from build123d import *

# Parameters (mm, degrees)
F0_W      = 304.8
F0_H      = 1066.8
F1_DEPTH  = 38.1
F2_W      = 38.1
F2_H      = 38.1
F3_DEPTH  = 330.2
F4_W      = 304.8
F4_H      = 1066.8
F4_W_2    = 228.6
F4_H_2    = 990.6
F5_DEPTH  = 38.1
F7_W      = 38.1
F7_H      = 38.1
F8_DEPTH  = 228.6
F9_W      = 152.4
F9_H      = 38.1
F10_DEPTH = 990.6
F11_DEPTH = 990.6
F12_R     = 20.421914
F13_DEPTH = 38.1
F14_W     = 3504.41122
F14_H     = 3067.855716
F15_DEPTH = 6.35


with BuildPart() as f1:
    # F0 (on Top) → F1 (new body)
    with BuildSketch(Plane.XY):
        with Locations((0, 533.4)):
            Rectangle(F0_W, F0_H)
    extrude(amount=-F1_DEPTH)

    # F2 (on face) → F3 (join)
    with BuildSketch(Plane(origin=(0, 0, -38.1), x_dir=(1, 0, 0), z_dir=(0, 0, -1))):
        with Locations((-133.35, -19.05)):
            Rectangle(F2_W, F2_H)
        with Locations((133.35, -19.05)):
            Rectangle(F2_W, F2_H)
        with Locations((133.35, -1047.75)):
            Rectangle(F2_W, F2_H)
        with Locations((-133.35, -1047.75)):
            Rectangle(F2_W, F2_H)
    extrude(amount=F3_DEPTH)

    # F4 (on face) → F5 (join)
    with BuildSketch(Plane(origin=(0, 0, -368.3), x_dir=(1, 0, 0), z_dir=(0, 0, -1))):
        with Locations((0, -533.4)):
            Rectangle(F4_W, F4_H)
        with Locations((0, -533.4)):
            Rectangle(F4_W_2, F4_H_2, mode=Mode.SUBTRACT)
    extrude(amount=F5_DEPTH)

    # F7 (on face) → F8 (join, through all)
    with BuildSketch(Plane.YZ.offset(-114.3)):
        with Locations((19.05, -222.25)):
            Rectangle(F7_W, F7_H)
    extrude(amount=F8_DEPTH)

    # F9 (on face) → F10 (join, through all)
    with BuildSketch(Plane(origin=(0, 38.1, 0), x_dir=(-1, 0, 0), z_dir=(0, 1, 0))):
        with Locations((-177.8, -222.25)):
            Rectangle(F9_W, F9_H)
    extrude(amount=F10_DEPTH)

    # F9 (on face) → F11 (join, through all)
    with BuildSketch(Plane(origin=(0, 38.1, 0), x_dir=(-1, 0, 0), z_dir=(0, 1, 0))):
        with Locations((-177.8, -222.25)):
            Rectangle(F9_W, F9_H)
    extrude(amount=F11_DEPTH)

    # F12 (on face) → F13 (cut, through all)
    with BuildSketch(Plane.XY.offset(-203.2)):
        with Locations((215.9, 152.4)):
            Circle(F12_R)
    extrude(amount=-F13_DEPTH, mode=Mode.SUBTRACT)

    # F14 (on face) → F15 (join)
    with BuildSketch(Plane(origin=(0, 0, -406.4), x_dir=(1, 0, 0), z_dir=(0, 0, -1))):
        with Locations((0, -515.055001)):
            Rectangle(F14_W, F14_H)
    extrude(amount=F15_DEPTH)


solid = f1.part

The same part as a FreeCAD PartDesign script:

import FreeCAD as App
import Part
import Sketcher

V = App.Vector
Q = App.Units.Quantity


def add_polygon(sketch, points):
    """Adds a closed chain of lines whose ends are joined by coincident constraints."""
    first, n = sketch.GeometryCount, len(points)
    for a, b in zip(points, points[1:] + points[:1]):
        sketch.addGeometry(Part.LineSegment(App.Vector(*a, 0), App.Vector(*b, 0)), False)
    for i in range(n):
        sketch.addConstraint(Sketcher.Constraint("Coincident", first + i, 2, first + (i + 1) % n, 1))

doc = App.newDocument("Part")
params = doc.addObject("Spreadsheet::Sheet", "Params")
for row, (alias, value) in enumerate([
    ("sketch1_width", "12 in"),
    ("sketch1_height", "42 in"),
    ("pad1_length", "1.5 in"),
    ("sketch2_width", "1.5 in"),
    ("pad2_length", "13 in"),
    ("sketch3_width", "12 in"),
    ("sketch3_width2", "9 in"),
    ("sketch3_height", "42 in"),
    ("sketch3_height2", "39 in"),
    ("pad3_length", "1.5 in"),
    ("sketch4_width", "1.5 in"),
    ("sketch5_width", "6 in"),
    ("sketch5_height", "1.5 in"),
    ("pad5_length", "39 in"),
    ("sketch6_width", "6 in"),
    ("sketch6_height", "1.5 in"),
    ("pad7_length", "0.25 in"),
], start=1):
    params.set(f"A{row}", alias)
    params.set(f"B{row}", "=" + value)
    params.setAlias(f"B{row}", alias)

body = doc.addObject("PartDesign::Body", "Body")

sketch1 = body.newObject("Sketcher::SketchObject", "Sketch")
sketch1.AttachmentSupport = (doc.getObject("XY_Plane"), [""])
sketch1.MapMode = "FlatFace"
add_polygon(sketch1, [(-152, 1067), (-152, 0), (152, 0), (152, 1067)])
sketch1.addConstraint(Sketcher.Constraint("Vertical", 0))
sketch1.addConstraint(Sketcher.Constraint("Horizontal", 1))
sketch1.addConstraint(Sketcher.Constraint("Vertical", 2))
sketch1.addConstraint(Sketcher.Constraint("Horizontal", 3))
sketch1.addConstraint(Sketcher.Constraint("Symmetric", 0, 2, 1, 2, -1, 1))
sketch1.addConstraint(Sketcher.Constraint("DistanceX", 1, 1, 1, 2, Q("12 in")))
sketch1.addConstraint(Sketcher.Constraint("DistanceY", 0, 2, 0, 1, Q("42 in")))
sketch1.setExpression("Constraints[9]", "Params.sketch1_width")
sketch1.setExpression("Constraints[10]", "Params.sketch1_height")
pad1 = body.newObject("PartDesign::Pad", "Pad")
pad1.Profile = sketch1
pad1.setExpression("Length", "Params.pad1_length")
pad1.Reversed = True

sketch2 = body.newObject("Sketcher::SketchObject", "Sketch001")
sketch2.AttachmentSupport = (doc.getObject("XY_Plane"), [""])
sketch2.MapMode = "FlatFace"
sketch2.AttachmentOffset = App.Placement(V(0, 0, -1.5 * 25.4), App.Rotation())
add_polygon(sketch2, [(-152, 0), (-152, 38), (-114, 38), (-114, 0)])
add_polygon(sketch2, [(114, 0), (114, 38), (152, 38), (152, 0)])
add_polygon(sketch2, [(114, 1029), (114, 1067), (152, 1067), (152, 1029)])
add_polygon(sketch2, [(-152, 1029), (-152, 1067), (-114, 1067), (-114, 1029)])
sketch2.addConstraint(Sketcher.Constraint("Vertical", 0))
sketch2.addConstraint(Sketcher.Constraint("Horizontal", 1))
sketch2.addConstraint(Sketcher.Constraint("Vertical", 2))
sketch2.addConstraint(Sketcher.Constraint("Horizontal", 3))
sketch2.addConstraint(Sketcher.Constraint("Vertical", 4))
sketch2.addConstraint(Sketcher.Constraint("Horizontal", 5))
sketch2.addConstraint(Sketcher.Constraint("Vertical", 6))
sketch2.addConstraint(Sketcher.Constraint("Horizontal", 7))
sketch2.addConstraint(Sketcher.Constraint("Vertical", 8))
sketch2.addConstraint(Sketcher.Constraint("Horizontal", 9))
sketch2.addConstraint(Sketcher.Constraint("Vertical", 10))
sketch2.addConstraint(Sketcher.Constraint("Horizontal", 11))
sketch2.addConstraint(Sketcher.Constraint("Vertical", 12))
sketch2.addConstraint(Sketcher.Constraint("Horizontal", 13))
sketch2.addConstraint(Sketcher.Constraint("Vertical", 14))
sketch2.addConstraint(Sketcher.Constraint("Horizontal", 15))
sketch2.addConstraint(Sketcher.Constraint("Symmetric", 3, 2, 6, 2, -1, 1))
sketch2.addConstraint(Sketcher.Constraint("Symmetric", 1, 2, 4, 2, -2))
sketch2.addConstraint(Sketcher.Constraint("Symmetric", 9, 2, 12, 2, -2))
sketch2.addConstraint(Sketcher.Constraint("Symmetric", 11, 2, 14, 2, -2))
sketch2.addConstraint(Sketcher.Constraint("PointOnObject", 2, 2, -1))
sketch2.addConstraint(Sketcher.Constraint("Vertical", 7, 2, 8, 2))
sketch2.addConstraint(Sketcher.Constraint("Vertical", 6, 2, 9, 2))
sketch2.addConstraint(Sketcher.Constraint("Equal", 15, 0))
sketch2.addConstraint(Sketcher.Constraint("Equal", 6, 8))
sketch2.addConstraint(Sketcher.Constraint("DistanceX", 1, 1, 1, 2, Q("1.5 in")))
sketch2.addConstraint(Sketcher.Constraint("DistanceX", 0, 2, -1, 1, Q("6 in")))
sketch2.addConstraint(Sketcher.Constraint("DistanceY", -1, 1, 8, 2, Q("42 in")))
sketch2.setExpression("Constraints[41]", "Params.sketch2_width")
pad2 = body.newObject("PartDesign::Pad", "Pad001")
pad2.Profile = sketch2
pad2.setExpression("Length", "Params.pad2_length")
pad2.Reversed = True

sketch3 = body.newObject("Sketcher::SketchObject", "Sketch002")
sketch3.AttachmentSupport = (doc.getObject("XY_Plane"), [""])
sketch3.MapMode = "FlatFace"
sketch3.AttachmentOffset = App.Placement(V(0, 0, -14.5 * 25.4), App.Rotation())
add_polygon(sketch3, [(-152, 0), (-152, 1067), (152, 1067), (152, 0)])
add_polygon(sketch3, [(114, 1029), (-114, 1029), (-114, 38), (114, 38)])
sketch3.addConstraint(Sketcher.Constraint("Vertical", 0))
sketch3.addConstraint(Sketcher.Constraint("Horizontal", 1))
sketch3.addConstraint(Sketcher.Constraint("Vertical", 2))
sketch3.addConstraint(Sketcher.Constraint("Horizontal", 3))
sketch3.addConstraint(Sketcher.Constraint("Horizontal", 4))
sketch3.addConstraint(Sketcher.Constraint("Vertical", 5))
sketch3.addConstraint(Sketcher.Constraint("Horizontal", 6))
sketch3.addConstraint(Sketcher.Constraint("Vertical", 7))
sketch3.addConstraint(Sketcher.Constraint("Symmetric", 2, 2, 3, 2, -1, 1))
sketch3.addConstraint(Sketcher.Constraint("DistanceX", 1, 1, 1, 2, Q("12 in")))
sketch3.addConstraint(Sketcher.Constraint("DistanceX", 4, 2, 4, 1, Q("9 in")))
sketch3.addConstraint(Sketcher.Constraint("DistanceY", 0, 1, 0, 2, Q("42 in")))
sketch3.addConstraint(Sketcher.Constraint("DistanceY", 5, 2, 5, 1, Q("39 in")))
sketch3.addConstraint(Sketcher.Constraint("DistanceX", 4, 2, -1, 1, Q("4.5 in")))
sketch3.addConstraint(Sketcher.Constraint("DistanceY", -1, 1, 4, 2, Q("40.5 in")))
sketch3.setExpression("Constraints[17]", "Params.sketch3_width")
sketch3.setExpression("Constraints[18]", "Params.sketch3_width2")
sketch3.setExpression("Constraints[19]", "Params.sketch3_height")
sketch3.setExpression("Constraints[20]", "Params.sketch3_height2")
pad3 = body.newObject("PartDesign::Pad", "Pad002")
pad3.Profile = sketch3
pad3.setExpression("Length", "Params.pad3_length")
pad3.Reversed = True

sketch4 = body.newObject("Sketcher::SketchObject", "Sketch003")
sketch4.AttachmentSupport = (doc.getObject("YZ_Plane"), [""])
sketch4.MapMode = "FlatFace"
sketch4.AttachmentOffset = App.Placement(V(0, 0, -4.5 * 25.4), App.Rotation())
add_polygon(sketch4, [(0, -203), (0, -241), (38, -241), (38, -203)])
sketch4.addConstraint(Sketcher.Constraint("Vertical", 0))
sketch4.addConstraint(Sketcher.Constraint("Horizontal", 1))
sketch4.addConstraint(Sketcher.Constraint("Vertical", 2))
sketch4.addConstraint(Sketcher.Constraint("Horizontal", 3))
sketch4.addConstraint(Sketcher.Constraint("PointOnObject", 0, 2, -2))
sketch4.addConstraint(Sketcher.Constraint("Equal", 3, 0))
sketch4.addConstraint(Sketcher.Constraint("DistanceX", 1, 1, 1, 2, Q("1.5 in")))
sketch4.addConstraint(Sketcher.Constraint("DistanceY", 2, 2, -1, 1, Q("8 in")))
sketch4.setExpression("Constraints[10]", "Params.sketch4_width")
pad4 = body.newObject("PartDesign::Pad", "Pad003")
pad4.Profile = sketch4
pad4.Type = "UpToLast"

sketch5 = body.newObject("Sketcher::SketchObject", "Sketch004")
sketch5.AttachmentSupport = (doc.getObject("XZ_Plane"), [""])
sketch5.MapMode = "FlatFace"
sketch5.AttachmentOffset = App.Placement(V(0, 0, -1.5 * 25.4), App.Rotation())
add_polygon(sketch5, [(254, -203), (254, -241), (102, -241), (102, -203)])
sketch5.addConstraint(Sketcher.Constraint("Vertical", 0))
sketch5.addConstraint(Sketcher.Constraint("Horizontal", 1))
sketch5.addConstraint(Sketcher.Constraint("Vertical", 2))
sketch5.addConstraint(Sketcher.Constraint("Horizontal", 3))
sketch5.addConstraint(Sketcher.Constraint("DistanceX", 1, 2, 1, 1, Q("6 in")))
sketch5.addConstraint(Sketcher.Constraint("DistanceY", 0, 2, 0, 1, Q("1.5 in")))
sketch5.addConstraint(Sketcher.Constraint("DistanceX", -1, 1, 0, 2, Q("10 in")))
sketch5.addConstraint(Sketcher.Constraint("DistanceY", 2, 2, -1, 1, Q("8 in")))
sketch5.setExpression("Constraints[8]", "Params.sketch5_width")
sketch5.setExpression("Constraints[9]", "Params.sketch5_height")
pad5 = body.newObject("PartDesign::Pad", "Pad004")
pad5.Profile = sketch5
pad5.setExpression("Length", "Params.pad5_length")
pad5.Reversed = True

sketch6 = body.newObject("Sketcher::SketchObject", "Sketch005")
sketch6.AttachmentSupport = (doc.getObject("XZ_Plane"), [""])
sketch6.MapMode = "FlatFace"
sketch6.AttachmentOffset = App.Placement(V(0, 0, -1.5 * 25.4), App.Rotation())
add_polygon(sketch6, [(254, -203), (254, -241), (102, -241), (102, -203)])
sketch6.addConstraint(Sketcher.Constraint("Vertical", 0))
sketch6.addConstraint(Sketcher.Constraint("Horizontal", 1))
sketch6.addConstraint(Sketcher.Constraint("Vertical", 2))
sketch6.addConstraint(Sketcher.Constraint("Horizontal", 3))
sketch6.addConstraint(Sketcher.Constraint("DistanceX", 1, 2, 1, 1, Q("6 in")))
sketch6.addConstraint(Sketcher.Constraint("DistanceY", 0, 2, 0, 1, Q("1.5 in")))
sketch6.addConstraint(Sketcher.Constraint("DistanceX", -1, 1, 0, 2, Q("10 in")))
sketch6.addConstraint(Sketcher.Constraint("DistanceY", 2, 2, -1, 1, Q("8 in")))
sketch6.setExpression("Constraints[8]", "Params.sketch6_width")
sketch6.setExpression("Constraints[9]", "Params.sketch6_height")
pad6 = body.newObject("PartDesign::Pad", "Pad005")
pad6.Profile = sketch6
pad6.Type = "UpToLast"
pad6.Reversed = True

sketch7 = body.newObject("Sketcher::SketchObject", "Sketch006")
sketch7.AttachmentSupport = (doc.getObject("XY_Plane"), [""])
sketch7.MapMode = "FlatFace"
sketch7.AttachmentOffset = App.Placement(V(0, 0, -8 * 25.4), App.Rotation())
sketch7.addGeometry(Part.Circle(V(216, 152, 0), V(0, 0, 1), 20), False)
sketch7.addConstraint(Sketcher.Constraint("DistanceY", -1, 1, 0, 3, Q("6 in")))
sketch7.addConstraint(Sketcher.Constraint("DistanceX", -1, 1, 0, 3, Q("8.5 in")))
sketch7.addConstraint(Sketcher.Constraint("Diameter", 0, 40.843828))
pocket1 = body.newObject("PartDesign::Pocket", "Pocket")
pocket1.Profile = sketch7
pocket1.Type = "ThroughAll"

sketch8 = body.newObject("Sketcher::SketchObject", "Sketch007")
sketch8.AttachmentSupport = (doc.getObject("XY_Plane"), [""])
sketch8.MapMode = "FlatFace"
sketch8.AttachmentOffset = App.Placement(V(0, 0, -16 * 25.4), App.Rotation())
add_polygon(sketch8, [(-1752, -1019), (-1752, 2049), (1752, 2049), (1752, -1019)])
sketch8.addConstraint(Sketcher.Constraint("Vertical", 0))
sketch8.addConstraint(Sketcher.Constraint("Horizontal", 1))
sketch8.addConstraint(Sketcher.Constraint("Vertical", 2))
sketch8.addConstraint(Sketcher.Constraint("Horizontal", 3))
sketch8.addConstraint(Sketcher.Constraint("DistanceX", 1, 1, 1, 2, 3504.41122))
sketch8.addConstraint(Sketcher.Constraint("DistanceY", 0, 1, 0, 2, 3067.855716))
sketch8.addConstraint(Sketcher.Constraint("DistanceX", 0, 2, -1, 1, 1752.20561))
sketch8.addConstraint(Sketcher.Constraint("DistanceY", -1, 1, 0, 2, 2048.982859))
pad7 = body.newObject("PartDesign::Pad", "Pad006")
pad7.Profile = sketch8
pad7.setExpression("Length", "Params.pad7_length")
pad7.Reversed = True

doc.recompute()
